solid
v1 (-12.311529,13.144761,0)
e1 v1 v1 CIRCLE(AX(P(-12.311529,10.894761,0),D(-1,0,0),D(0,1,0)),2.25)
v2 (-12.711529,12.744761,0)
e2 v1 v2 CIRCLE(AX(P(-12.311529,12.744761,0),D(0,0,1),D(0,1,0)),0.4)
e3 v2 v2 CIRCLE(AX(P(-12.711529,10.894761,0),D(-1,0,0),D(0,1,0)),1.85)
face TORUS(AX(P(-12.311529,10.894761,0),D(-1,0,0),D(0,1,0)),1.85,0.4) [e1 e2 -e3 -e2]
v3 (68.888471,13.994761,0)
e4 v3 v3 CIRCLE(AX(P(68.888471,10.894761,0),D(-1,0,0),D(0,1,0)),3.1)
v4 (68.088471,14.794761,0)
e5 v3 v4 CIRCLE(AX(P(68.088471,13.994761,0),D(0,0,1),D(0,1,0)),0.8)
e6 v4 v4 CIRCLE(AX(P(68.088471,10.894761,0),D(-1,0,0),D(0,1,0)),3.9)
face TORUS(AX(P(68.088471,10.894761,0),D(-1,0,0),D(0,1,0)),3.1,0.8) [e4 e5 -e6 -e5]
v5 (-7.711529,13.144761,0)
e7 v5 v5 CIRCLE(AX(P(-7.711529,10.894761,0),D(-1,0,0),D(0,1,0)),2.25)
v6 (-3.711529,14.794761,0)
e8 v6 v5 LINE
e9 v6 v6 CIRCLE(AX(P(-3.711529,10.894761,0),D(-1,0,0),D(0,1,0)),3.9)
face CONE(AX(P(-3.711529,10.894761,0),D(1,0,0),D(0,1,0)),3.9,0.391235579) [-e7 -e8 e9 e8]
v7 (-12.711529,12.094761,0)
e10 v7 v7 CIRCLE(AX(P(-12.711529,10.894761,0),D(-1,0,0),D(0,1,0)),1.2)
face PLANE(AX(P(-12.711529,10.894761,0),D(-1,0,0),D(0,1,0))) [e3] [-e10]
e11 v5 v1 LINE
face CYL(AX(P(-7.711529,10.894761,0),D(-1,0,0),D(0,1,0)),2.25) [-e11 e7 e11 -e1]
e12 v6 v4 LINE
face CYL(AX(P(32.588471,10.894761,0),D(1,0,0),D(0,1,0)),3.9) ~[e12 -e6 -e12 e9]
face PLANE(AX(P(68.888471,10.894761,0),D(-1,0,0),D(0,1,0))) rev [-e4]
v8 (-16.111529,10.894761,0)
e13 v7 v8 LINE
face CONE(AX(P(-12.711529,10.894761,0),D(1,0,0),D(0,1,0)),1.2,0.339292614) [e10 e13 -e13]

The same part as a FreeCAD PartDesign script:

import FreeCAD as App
import Part
import Sketcher
from FreeCAD import Vector


def edges_at(feature, points):
    """Names of the edges that pass closest to the given points."""
    edges = feature.Shape.Edges
    near = lambda p: min(range(len(edges)), key=lambda i: edges[i].distToShape(Part.Vertex(*p))[0])
    return sorted({f"Edge{near(p) + 1}" for p in points})


def add_polygon(sketch, points):
    """Adds a closed chain of lines whose ends are joined by coincident constraints."""
    first, n = sketch.GeometryCount, len(points)
    for a, b in zip(points, points[1:] + points[:1]):
        sketch.addGeometry(Part.LineSegment(App.Vector(*a, 0), App.Vector(*b, 0)), False)
    for i in range(n):
        sketch.addConstraint(Sketcher.Constraint("Coincident", first + i, 2, first + (i + 1) % n, 1))

doc = App.newDocument("Part")
body = doc.addObject("PartDesign::Body", "Body")

sketch1 = doc.addObject("Sketcher::SketchObject", "Sketch")
body.addObject(sketch1)
sketch1.AttachmentSupport = (doc.XY_Plane, [""])
sketch1.MapMode = "FlatFace"
add_polygon(sketch1, [(-12.711529, 12.094761), (-16.111529, 10.894761), (68.888471, 10.894761), (68.888471, 14.794761), (-3.711529, 14.794761), (-7.711529, 13.144761), (-12.711529, 13.144761)])
sketch1.addGeometry(Part.LineSegment(Vector(68.888471, 10.894761, 0), Vector(-16.111529, 10.894761, 0)), True)
sketch1.addConstraint(Sketcher.Constraint("Horizontal", 1))
sketch1.addConstraint(Sketcher.Constraint("Vertical", 2))
sketch1.addConstraint(Sketcher.Constraint("Horizontal", 3))
sketch1.addConstraint(Sketcher.Constraint("Horizontal", 5))
sketch1.addConstraint(Sketcher.Constraint("Vertical", 6))
sketch1.addConstraint(Sketcher.Constraint("Horizontal", 7))
sketch1.addConstraint(Sketcher.Constraint("Coincident", 7, 1, 1, 2))
sketch1.addConstraint(Sketcher.Constraint("Equal", 1, 7))
sketch1.addConstraint(Sketcher.Constraint("DistanceX", 1, 1, 1, 2, 85.0))
sketch1.addConstraint(Sketcher.Constraint("DistanceX", 5, 2, 5, 1, 5.0))
sketch1.addConstraint(Sketcher.Constraint("DistanceX", 3, 2, 3, 1, 72.6))
sketch1.addConstraint(Sketcher.Constraint("DistanceY", 2, 1, 2, 2, 3.9))
sketch1.addConstraint(Sketcher.Constraint("DistanceX", 4, 2, 3, 2, 4.0))
sketch1.addConstraint(Sketcher.Constraint("DistanceY", 6, 2, 6, 1, 1.05))
sketch1.addConstraint(Sketcher.Constraint("DistanceY", 0, 2, 6, 2, 1.2))
sketch1.addConstraint(Sketcher.Constraint("DistanceX", 0, 2, -1, 1, 16.111529))
sketch1.addConstraint(Sketcher.Constraint("DistanceY", -1, 1, 0, 2, 10.894761))
revolution = doc.addObject("PartDesign::Revolution", "Revolution")
body.addObject(revolution)
revolution.Profile = sketch1
revolution.ReferenceAxis = (sketch1, ["Axis0"])
revolution.Angle = 360
doc.recompute()

fillet = doc.addObject("PartDesign::Fillet", "Fillet")
body.addObject(fillet)
fillet.Base = (revolution, edges_at(revolution, [(68.888, 6.995, 0)]))
fillet.Radius = 0.8
doc.recompute()

fillet2 = doc.addObject("PartDesign::Fillet", "Fillet001")
body.addObject(fillet2)
fillet2.Base = (fillet, edges_at(fillet, [(-12.712, 8.645, 0)]))
fillet2.Radius = 0.4

doc.recompute()
